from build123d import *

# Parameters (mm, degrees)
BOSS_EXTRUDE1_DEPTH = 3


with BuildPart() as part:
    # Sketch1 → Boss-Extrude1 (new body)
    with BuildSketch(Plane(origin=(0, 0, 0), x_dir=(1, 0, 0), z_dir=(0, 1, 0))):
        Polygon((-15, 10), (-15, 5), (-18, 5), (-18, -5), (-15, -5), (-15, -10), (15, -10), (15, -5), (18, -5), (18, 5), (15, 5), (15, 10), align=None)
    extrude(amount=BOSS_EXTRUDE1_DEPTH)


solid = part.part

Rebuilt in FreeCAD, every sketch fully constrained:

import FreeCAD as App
import Part
import Sketcher
from FreeCAD import Vector
Q = App.Units.Quantity


def add_polygon(sketch, points):
    """Adds a closed chain of lines whose ends are joined by coincident constraints."""
    first, n = sketch.GeometryCount, len(points)
    for a, b in zip(points, points[1:] + points[:1]):
        sketch.addGeometry(Part.LineSegment(App.Vector(*a, 0), App.Vector(*b, 0)), False)
    for i in range(n):
        sketch.addConstraint(Sketcher.Constraint("Coincident", first + i, 2, first + (i + 1) % n, 1))

doc = App.newDocument("Part")
body = doc.addObject("PartDesign::Body", "Body")

sketch1 = body.newObject("Sketcher::SketchObject", "Sketch")
sketch1.AttachmentSupport = (doc.getObject("XZ_Plane"), [""])
sketch1.MapMode = "FlatFace"
add_polygon(sketch1, [(-15, -10), (-15, -5), (-18, -5), (-18, 5), (-15, 5), (-15, 10), (15, 10), (15, 5), (18, 5), (18, -5), (15, -5), (15, -10)])
sketch1.addConstraint([
    Sketcher.Constraint("Vertical", 0),
    Sketcher.Constraint("Horizontal", 1),
    Sketcher.Constraint("Vertical", 2),
    Sketcher.Constraint("Horizontal", 3),
    Sketcher.Constraint("Vertical", 4),
    Sketcher.Constraint("Horizontal", 5),
    Sketcher.Constraint("Vertical", 6),
    Sketcher.Constraint("Horizontal", 7),
    Sketcher.Constraint("Vertical", 8),
    Sketcher.Constraint("Horizontal", 9),
    Sketcher.Constraint("Vertical", 10),
    Sketcher.Constraint("Horizontal", 11),
    Sketcher.Constraint("Symmetric", 0, 2, 6, 2, -1, 1),
    Sketcher.Constraint("Symmetric", 2, 2, 8, 2, -1, 1),
    Sketcher.Constraint("Symmetric", 4, 2, 10, 2, -1, 1),
    Sketcher.Constraint("Symmetric", 3, 2, 6, 2, -2),
    Sketcher.Constraint("DistanceX", 1, 2, 1, 1, Q("3 mm")),
    Sketcher.Constraint("DistanceX", 5, 1, 5, 2, Q("30 mm")),
    Sketcher.Constraint("DistanceY", 0, 1, 0, 2, Q("5 mm")),
    Sketcher.Constraint("DistanceY", 2, 1, 2, 2, Q("10 mm")),
])
pad1 = body.newObject("PartDesign::Pad", "Pad")
pad1.Profile = sketch1
pad1.Length = 3
pad1.Reversed = True

doc.recompute()
